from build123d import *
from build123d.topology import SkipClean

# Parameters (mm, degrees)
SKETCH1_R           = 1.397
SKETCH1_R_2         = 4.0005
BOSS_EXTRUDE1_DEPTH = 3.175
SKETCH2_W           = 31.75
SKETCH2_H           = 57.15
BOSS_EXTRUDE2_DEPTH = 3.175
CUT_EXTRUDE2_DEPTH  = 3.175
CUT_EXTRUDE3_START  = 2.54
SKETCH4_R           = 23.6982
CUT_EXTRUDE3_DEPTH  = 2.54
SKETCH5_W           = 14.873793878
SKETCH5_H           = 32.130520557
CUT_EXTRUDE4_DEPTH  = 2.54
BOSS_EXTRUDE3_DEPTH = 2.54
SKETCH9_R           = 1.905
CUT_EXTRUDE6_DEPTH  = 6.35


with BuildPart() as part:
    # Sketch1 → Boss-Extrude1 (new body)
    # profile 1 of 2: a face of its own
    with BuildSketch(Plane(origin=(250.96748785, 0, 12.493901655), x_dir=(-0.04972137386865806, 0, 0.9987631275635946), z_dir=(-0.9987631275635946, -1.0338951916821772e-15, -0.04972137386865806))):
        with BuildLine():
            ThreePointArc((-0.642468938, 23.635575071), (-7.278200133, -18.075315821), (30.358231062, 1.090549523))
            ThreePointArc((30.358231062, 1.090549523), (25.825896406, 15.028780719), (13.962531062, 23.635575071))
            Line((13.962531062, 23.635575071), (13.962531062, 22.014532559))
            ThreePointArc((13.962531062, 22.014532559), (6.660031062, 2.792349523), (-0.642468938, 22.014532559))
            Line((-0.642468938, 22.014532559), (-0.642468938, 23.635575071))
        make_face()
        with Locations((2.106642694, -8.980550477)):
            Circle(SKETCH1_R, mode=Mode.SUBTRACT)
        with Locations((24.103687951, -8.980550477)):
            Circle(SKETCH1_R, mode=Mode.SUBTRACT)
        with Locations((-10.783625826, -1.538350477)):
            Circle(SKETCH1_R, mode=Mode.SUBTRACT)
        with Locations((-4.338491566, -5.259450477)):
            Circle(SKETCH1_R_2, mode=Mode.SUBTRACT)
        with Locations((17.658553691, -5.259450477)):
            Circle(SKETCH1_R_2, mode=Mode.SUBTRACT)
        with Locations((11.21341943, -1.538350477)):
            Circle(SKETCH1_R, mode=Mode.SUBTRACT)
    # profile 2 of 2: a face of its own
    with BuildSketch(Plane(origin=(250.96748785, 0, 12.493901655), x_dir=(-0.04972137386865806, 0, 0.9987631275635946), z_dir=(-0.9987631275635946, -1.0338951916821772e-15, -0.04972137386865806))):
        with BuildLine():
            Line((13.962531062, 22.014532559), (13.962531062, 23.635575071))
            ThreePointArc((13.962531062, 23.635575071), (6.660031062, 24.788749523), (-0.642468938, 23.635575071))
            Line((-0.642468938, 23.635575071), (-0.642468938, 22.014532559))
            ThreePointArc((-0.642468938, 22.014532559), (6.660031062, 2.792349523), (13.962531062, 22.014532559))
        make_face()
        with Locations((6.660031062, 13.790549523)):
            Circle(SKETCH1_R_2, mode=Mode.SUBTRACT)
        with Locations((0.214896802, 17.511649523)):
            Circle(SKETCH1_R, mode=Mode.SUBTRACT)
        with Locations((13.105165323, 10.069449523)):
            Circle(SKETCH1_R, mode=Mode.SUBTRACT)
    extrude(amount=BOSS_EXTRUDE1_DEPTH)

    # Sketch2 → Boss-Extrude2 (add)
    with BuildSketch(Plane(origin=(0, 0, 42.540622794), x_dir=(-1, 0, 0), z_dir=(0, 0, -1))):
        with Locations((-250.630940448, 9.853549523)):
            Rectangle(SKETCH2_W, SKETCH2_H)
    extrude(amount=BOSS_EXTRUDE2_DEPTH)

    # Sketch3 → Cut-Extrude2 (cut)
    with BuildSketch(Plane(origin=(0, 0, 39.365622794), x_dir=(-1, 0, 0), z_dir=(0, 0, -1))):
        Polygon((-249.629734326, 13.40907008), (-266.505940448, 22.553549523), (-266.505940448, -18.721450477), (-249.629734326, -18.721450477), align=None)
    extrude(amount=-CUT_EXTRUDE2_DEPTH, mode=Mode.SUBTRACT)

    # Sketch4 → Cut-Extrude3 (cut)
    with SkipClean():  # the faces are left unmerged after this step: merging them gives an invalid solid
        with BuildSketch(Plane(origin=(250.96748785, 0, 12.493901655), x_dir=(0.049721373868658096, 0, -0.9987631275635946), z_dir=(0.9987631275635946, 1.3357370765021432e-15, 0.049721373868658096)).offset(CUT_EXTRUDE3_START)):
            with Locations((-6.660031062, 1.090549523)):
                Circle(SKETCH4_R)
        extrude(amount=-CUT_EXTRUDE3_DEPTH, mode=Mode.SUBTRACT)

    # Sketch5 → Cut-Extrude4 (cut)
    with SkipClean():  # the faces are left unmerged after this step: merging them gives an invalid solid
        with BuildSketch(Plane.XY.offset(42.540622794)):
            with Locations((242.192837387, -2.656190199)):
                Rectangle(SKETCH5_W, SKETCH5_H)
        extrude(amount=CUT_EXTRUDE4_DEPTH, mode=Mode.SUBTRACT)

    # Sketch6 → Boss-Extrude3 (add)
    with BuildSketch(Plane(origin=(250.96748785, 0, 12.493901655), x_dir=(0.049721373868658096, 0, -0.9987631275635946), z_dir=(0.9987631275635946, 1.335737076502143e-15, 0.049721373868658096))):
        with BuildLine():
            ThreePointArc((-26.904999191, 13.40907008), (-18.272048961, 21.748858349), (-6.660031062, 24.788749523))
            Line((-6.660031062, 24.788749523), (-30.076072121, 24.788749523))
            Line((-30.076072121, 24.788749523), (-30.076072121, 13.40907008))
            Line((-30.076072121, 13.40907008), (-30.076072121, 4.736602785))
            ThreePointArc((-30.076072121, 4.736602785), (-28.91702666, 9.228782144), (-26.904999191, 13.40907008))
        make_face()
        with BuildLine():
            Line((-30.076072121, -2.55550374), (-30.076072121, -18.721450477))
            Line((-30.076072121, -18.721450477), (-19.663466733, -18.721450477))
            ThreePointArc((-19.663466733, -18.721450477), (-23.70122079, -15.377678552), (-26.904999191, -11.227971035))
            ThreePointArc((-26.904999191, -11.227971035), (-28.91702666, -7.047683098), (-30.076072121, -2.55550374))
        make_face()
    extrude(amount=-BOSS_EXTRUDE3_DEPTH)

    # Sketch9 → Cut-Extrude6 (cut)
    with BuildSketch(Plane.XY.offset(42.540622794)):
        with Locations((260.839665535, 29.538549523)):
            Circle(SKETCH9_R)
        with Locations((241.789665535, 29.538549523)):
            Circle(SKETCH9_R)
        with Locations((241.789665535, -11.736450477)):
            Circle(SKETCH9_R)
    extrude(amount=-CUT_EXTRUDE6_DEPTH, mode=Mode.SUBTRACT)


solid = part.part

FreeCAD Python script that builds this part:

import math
import FreeCAD as App
import Part
import Sketcher
Q = App.Units.Quantity

doc = App.newDocument("Part")
body = doc.addObject("PartDesign::Body", "Body")

# Sketch on an angled plane
sketch1 = body.newObject("Sketcher::SketchObject", "Sketch")
sketch1.Placement = App.Placement(App.Vector(250.967488, 0, 12.493902), App.Rotation(App.Vector(-0.049721374, 0, 0.998763128), App.Vector(0, 1.000000001, 0), App.Vector(-0.998763128, 0, -0.049721374), "ZXY"))
sketch1.addGeometry([
    Part.ArcOfCircle(Part.Circle(App.Vector(6.7, 1.1, 0), App.Vector(0, 0, 1), 23.7), math.radians(108), math.radians(360)),  # 0
    Part.ArcOfCircle(Part.Circle(App.Vector(6.7, 1.1, 0), App.Vector(0, 0, 1), 23.7), math.radians(0), math.radians(72)),  # 1
    Part.ArcOfCircle(Part.Circle(App.Vector(6.7, 1.1, 0), App.Vector(0, 0, 1), 23.7), math.radians(72), math.radians(108)),  # 2
    Part.Circle(App.Vector(2.1, -9, 0), App.Vector(0, 0, 1), 1.4),  # 3
    Part.Circle(App.Vector(24.1, -9, 0), App.Vector(0, 0, 1), 1.4),  # 4
    Part.Circle(App.Vector(-4.3, -5.3, 0), App.Vector(0, 0, 1), 4),  # 5
    Part.Circle(App.Vector(-10.8, -1.5, 0), App.Vector(0, 0, 1), 1.4),  # 6
    Part.Circle(App.Vector(17.7, -5.3, 0), App.Vector(0, 0, 1), 4),  # 7
    Part.Circle(App.Vector(11.2, -1.5, 0), App.Vector(0, 0, 1), 1.4),  # 8
    Part.Circle(App.Vector(13.1, 10.1, 0), App.Vector(0, 0, 1), 1.4),  # 9
    Part.Circle(App.Vector(6.7, 13.8, 0), App.Vector(0, 0, 1), 4),  # 10
    Part.Circle(App.Vector(0.2, 17.5, 0), App.Vector(0, 0, 1), 1.4),  # 11
], False)
sketch1.addConstraint([
    Sketcher.Constraint("Tangent", 0, 2, 1, 1),
    Sketcher.Constraint("Tangent", 1, 2, 2, 1),
    Sketcher.Constraint("Tangent", 2, 2, 0, 1),
    Sketcher.Constraint("Equal", 3, 4),
    Sketcher.Constraint("Equal", 4, 6),
    Sketcher.Constraint("Equal", 5, 7),
    Sketcher.Constraint("Equal", 6, 8),
    Sketcher.Constraint("Equal", 8, 9),
    Sketcher.Constraint("Equal", 7, 10),
    Sketcher.Constraint("Equal", 9, 11),
    Sketcher.Constraint("Horizontal", 3, 3, 4, 3),
    Sketcher.Constraint("Horizontal", 5, 3, 7, 3),
    Sketcher.Constraint("Horizontal", 6, 3, 8, 3),
    Sketcher.Constraint("Horizontal", 2, 3, 0, 2),
    Sketcher.Constraint("Horizontal", 1, 2, 2, 2),
    Sketcher.Constraint("Vertical", 2, 3, 10, 3),
    Sketcher.Constraint("Diameter", 3, Q("0.11 in")),
    Sketcher.Constraint("Diameter", 5, Q("0.315 in")),
    Sketcher.Constraint("Radius", 0, Q("0.933 in")),
    Sketcher.Constraint("DistanceY", 2, 3, 10, 3, Q("0.5 in")),
    Sketcher.Constraint("DistanceY", 5, 3, 0, 3, Q("0.25 in")),
    Sketcher.Constraint("DistanceY", 3, 3, 6, 3, Q("0.293 in")),
    Sketcher.Constraint("DistanceY", 8, 3, 9, 3, Q("0.457 in")),
    Sketcher.Constraint("DistanceY", 9, 3, 11, 3, Q("0.293 in")),
    Sketcher.Constraint("DistanceX", 2, 2, 1, 2, Q("0.575 in")),
    Sketcher.Constraint("DistanceY", 3, 3, 0, 3, Q("0.3965 in")),
    Sketcher.Constraint("DistanceX", -1, 1, 0, 3, 6.660031),
    Sketcher.Constraint("DistanceY", -1, 1, 0, 3, 1.09055),
    Sketcher.Constraint("DistanceX", 5, 3, -1, 1, 4.338492),
    Sketcher.Constraint("DistanceX", -1, 1, 8, 3, 11.213419),
    Sketcher.Constraint("DistanceX", 3, 3, 0, 3, 4.553388),
    Sketcher.Constraint("DistanceX", 5, 3, 4, 3, 28.44218),
    Sketcher.Constraint("DistanceX", 6, 3, 3, 3, 12.890269),
    Sketcher.Constraint("DistanceX", 3, 3, 7, 3, 15.551911),
    Sketcher.Constraint("DistanceX", 9, 3, 7, 3, 4.553388),
    Sketcher.Constraint("DistanceX", 11, 3, 9, 3, 12.890269),
])
pad1 = body.newObject("PartDesign::Pad", "Pad")
pad1.Profile = sketch1
pad1.Length = Q("0.125 in")

# Sketch on XY plane
sketch2 = body.newObject("Sketcher::SketchObject", "Sketch001")
sketch2.AttachmentSupport = (doc.getObject("XY_Plane"), [""])
sketch2.MapMode = "FlatFace"
sketch2.AttachmentOffset = App.Placement(App.Vector(0, 0, 42.540623), App.Rotation())
sketch2.addGeometry([
    Part.LineSegment(App.Vector(267, 38, 0), App.Vector(267, -19, 0)),
    Part.LineSegment(App.Vector(267, -19, 0), App.Vector(235, -19, 0)),
    Part.LineSegment(App.Vector(235, -19, 0), App.Vector(235, 38, 0)),
    Part.LineSegment(App.Vector(235, 38, 0), App.Vector(267, 38, 0)),
], False)
sketch2.addConstraint([
    Sketcher.Constraint("Coincident", 0, 2, 1, 1),
    Sketcher.Constraint("Coincident", 1, 2, 2, 1),
    Sketcher.Constraint("Coincident", 2, 2, 3, 1),
    Sketcher.Constraint("Coincident", 3, 2, 0, 1),
    Sketcher.Constraint("Vertical", 0),
    Sketcher.Constraint("Horizontal", 1),
    Sketcher.Constraint("Vertical", 2),
    Sketcher.Constraint("Horizontal", 3),
    Sketcher.Constraint("DistanceX", 1, 2, 1, 1, Q("1.25 in")),
    Sketcher.Constraint("DistanceY", 0, 2, 0, 1, Q("2.25 in")),
    Sketcher.Constraint("DistanceX", -1, 1, 0, 2, 266.50594),
    Sketcher.Constraint("DistanceY", 0, 2, -1, 1, 18.72145),
])
pad2 = body.newObject("PartDesign::Pad", "Pad001")
pad2.Profile = sketch2
pad2.Length = Q("0.125 in")
pad2.Reversed = True

# Sketch on XY plane
sketch3 = body.newObject("Sketcher::SketchObject", "Sketch002")
sketch3.AttachmentSupport = (doc.getObject("XY_Plane"), [""])
sketch3.MapMode = "FlatFace"
sketch3.AttachmentOffset = App.Placement(App.Vector(0, 0, 39.365623), App.Rotation())
sketch3.addGeometry([
    Part.LineSegment(App.Vector(250, 13, 0), App.Vector(267, 23, 0)),
    Part.LineSegment(App.Vector(267, 23, 0), App.Vector(267, -19, 0)),
    Part.LineSegment(App.Vector(267, -19, 0), App.Vector(250, -19, 0)),
    Part.LineSegment(App.Vector(250, -19, 0), App.Vector(250, 13, 0)),
], False)
sketch3.addConstraint([
    Sketcher.Constraint("Coincident", 0, 2, 1, 1),
    Sketcher.Constraint("Coincident", 1, 2, 2, 1),
    Sketcher.Constraint("Coincident", 2, 2, 3, 1),
    Sketcher.Constraint("Coincident", 3, 2, 0, 1),
    Sketcher.Constraint("Vertical", 1),
    Sketcher.Constraint("Horizontal", 2),
    Sketcher.Constraint("Vertical", 3),
    Sketcher.Constraint("DistanceY", 1, 2, 1, 1, Q("1.625 in")),
    Sketcher.Constraint("DistanceY", 3, 1, 3, 2, 32.130521),
    Sketcher.Constraint("DistanceX", 2, 2, 2, 1, 16.876206),
    Sketcher.Constraint("DistanceX", -1, 1, 0, 2, 266.50594),
    Sketcher.Constraint("DistanceY", -1, 1, 0, 2, 22.55355),
])
pocket1 = body.newObject("PartDesign::Pocket", "Pocket")
pocket1.Profile = sketch3
pocket1.Length = Q("0.125 in")
pocket1.Reversed = True

# Sketch on an angled plane
sketch4 = body.newObject("Sketcher::SketchObject", "Sketch003")
sketch4.Placement = App.Placement(App.Vector(253.504346, 0, 12.620194), App.Rotation(App.Vector(0.049721374, 0, -0.998763128), App.Vector(0, 1.000000001, 0), App.Vector(0.998763128, 0, 0.049721374), "ZXY"))
sketch4.addGeometry(Part.Circle(App.Vector(-7, 1, 0), App.Vector(0, 0, 1), 24), False)
sketch4.addConstraint([
    Sketcher.Constraint("Diameter", 0, Q("1.866 in")),
    Sketcher.Constraint("DistanceX", 0, 3, -1, 1, 6.660031),
    Sketcher.Constraint("DistanceY", -1, 1, 0, 3, 1.09055),
])
pocket2 = body.newObject("PartDesign::Pocket", "Pocket001")
pocket2.Profile = sketch4
pocket2.Length = Q("0.1 in")

# Sketch on XY plane
sketch5 = body.newObject("Sketcher::SketchObject", "Sketch004")
sketch5.AttachmentSupport = (doc.getObject("XY_Plane"), [""])
sketch5.MapMode = "FlatFace"
sketch5.AttachmentOffset = App.Placement(App.Vector(0, 0, 42.540623), App.Rotation())
sketch5.addGeometry([
    Part.LineSegment(App.Vector(235, 13, 0), App.Vector(235, -19, 0)),
    Part.LineSegment(App.Vector(235, -19, 0), App.Vector(250, -19, 0)),
    Part.LineSegment(App.Vector(250, -19, 0), App.Vector(250, 13, 0)),
    Part.LineSegment(App.Vector(250, 13, 0), App.Vector(235, 13, 0)),
], False)
sketch5.addConstraint([
    Sketcher.Constraint("Coincident", 0, 2, 1, 1),
    Sketcher.Constraint("Coincident", 1, 2, 2, 1),
    Sketcher.Constraint("Coincident", 2, 2, 3, 1),
    Sketcher.Constraint("Coincident", 3, 2, 0, 1),
    Sketcher.Constraint("Vertical", 0),
    Sketcher.Constraint("Horizontal", 1),
    Sketcher.Constraint("Vertical", 2),
    Sketcher.Constraint("Horizontal", 3),
    Sketcher.Constraint("DistanceY", 0, 2, 0, 1, 32.130521),
    Sketcher.Constraint("DistanceX", 1, 1, 1, 2, 14.873794),
    Sketcher.Constraint("DistanceX", -1, 1, 0, 2, 234.75594),
    Sketcher.Constraint("DistanceY", 0, 2, -1, 1, 18.72145),
])
pocket3 = body.newObject("PartDesign::Pocket", "Pocket002")
pocket3.Profile = sketch5
pocket3.Length = Q("0.1 in")
pocket3.Reversed = True

# Sketch on an angled plane
sketch6 = body.newObject("Sketcher::SketchObject", "Sketch005")
sketch6.Placement = App.Placement(App.Vector(250.967488, 0, 12.493902), App.Rotation(App.Vector(0.049721374, 0, -0.998763128), App.Vector(0, 1.000000001, 0), App.Vector(0.998763128, 0, 0.049721374), "ZXY"))
sketch6.addGeometry([
    Part.ArcOfCircle(Part.Circle(App.Vector(-7, 1, 0), App.Vector(0, 0, 1), 24), math.radians(90), math.radians(149)),  # 0
    Part.LineSegment(App.Vector(-7, 25, 0), App.Vector(-30, 25, 0)),  # 1
    Part.LineSegment(App.Vector(-30, 25, 0), App.Vector(-30, 5, 0)),  # 2
    Part.ArcOfCircle(Part.Circle(App.Vector(-7, 1, 0), App.Vector(0, 0, 1), 24), math.radians(149), math.radians(171)),  # 3
    Part.LineSegment(App.Vector(-30, -3, 0), App.Vector(-30, -19, 0)),  # 4
    Part.LineSegment(App.Vector(-30, -19, 0), App.Vector(-20, -19, 0)),  # 5
    Part.ArcOfCircle(Part.Circle(App.Vector(-7, 1, 0), App.Vector(0, 0, 1), 24), math.radians(-149), math.radians(-123)),  # 6
    Part.ArcOfCircle(Part.Circle(App.Vector(-7, 1, 0), App.Vector(0, 0, 1), 24), math.radians(-171), math.radians(-149)),  # 7
], False)
sketch6.addConstraint([
    Sketcher.Constraint("Tangent", 0, 1, 1, 1),
    Sketcher.Constraint("Coincident", 1, 2, 2, 1),
    Sketcher.Constraint("Coincident", 2, 2, 3, 2),
    Sketcher.Constraint("Tangent", 3, 1, 0, 2),
    Sketcher.Constraint("Coincident", 4, 2, 5, 1),
    Sketcher.Constraint("Coincident", 5, 2, 6, 2),
    Sketcher.Constraint("Tangent", 6, 1, 7, 2),
    Sketcher.Constraint("Coincident", 7, 1, 4, 1),
    Sketcher.Constraint("Horizontal", 1),
    Sketcher.Constraint("Vertical", 2),
    Sketcher.Constraint("Vertical", 4),
    Sketcher.Constraint("Horizontal", 5),
    Sketcher.Constraint("Coincident", 6, 3, 0, 3),
    Sketcher.Constraint("Equal", 0, 3),
    Sketcher.Constraint("Equal", 3, 6),
    Sketcher.Constraint("Equal", 6, 7),
    Sketcher.Constraint("Vertical", 2, 2, 4, 2),
    Sketcher.Constraint("Vertical", 3, 1, 6, 1),
    Sketcher.Constraint("Radius", 0, Q("0.933 in")),
    Sketcher.Constraint("DistanceY", 4, 2, 6, 3, Q("0.78 in")),
    Sketcher.Constraint("DistanceX", 1, 2, 1, 1, 23.416041),
    Sketcher.Constraint("DistanceX", 3, 1, -1, 1, 26.904999),
    Sketcher.Constraint("DistanceX", 0, 3, -1, 1, 6.660031),
    Sketcher.Constraint("DistanceY", -1, 1, 0, 3, 1.09055),
])
pad3 = body.newObject("PartDesign::Pad", "Pad002")
pad3.Profile = sketch6
pad3.Length = Q("0.1 in")
pad3.Reversed = True

# Sketch on XY plane
sketch7 = body.newObject("Sketcher::SketchObject", "Sketch006")
sketch7.AttachmentSupport = (doc.getObject("XY_Plane"), [""])
sketch7.MapMode = "FlatFace"
sketch7.AttachmentOffset = App.Placement(App.Vector(0, 0, 42.540623), App.Rotation())
sketch7.addGeometry([
    Part.Circle(App.Vector(260.8, 29.5, 0), App.Vector(0, 0, 1), 1.9),
    Part.Circle(App.Vector(241.8, 29.5, 0), App.Vector(0, 0, 1), 1.9),
    Part.Circle(App.Vector(241.8, -11.7, 0), App.Vector(0, 0, 1), 1.9),
], False)
sketch7.addConstraint([
    Sketcher.Constraint("Equal", 0, 1),
    Sketcher.Constraint("Equal", 1, 2),
    Sketcher.Constraint("Horizontal", 0, 3, 1, 3),
    Sketcher.Constraint("Vertical", 1, 3, 2, 3),
    Sketcher.Constraint("Diameter", 0, Q("0.15 in")),
    Sketcher.Constraint("DistanceX", 1, 3, 0, 3, Q("0.75 in")),
    Sketcher.Constraint("DistanceY", 2, 3, 1, 3, Q("1.625 in")),
    Sketcher.Constraint("DistanceY", -1, 1, 0, 3, 29.53855),
    Sketcher.Constraint("DistanceX", -1, 1, 0, 3, 260.839666),
])
pocket4 = body.newObject("PartDesign::Pocket", "Pocket003")
pocket4.Profile = sketch7
pocket4.Length = Q("0.25 in")

doc.recompute()
